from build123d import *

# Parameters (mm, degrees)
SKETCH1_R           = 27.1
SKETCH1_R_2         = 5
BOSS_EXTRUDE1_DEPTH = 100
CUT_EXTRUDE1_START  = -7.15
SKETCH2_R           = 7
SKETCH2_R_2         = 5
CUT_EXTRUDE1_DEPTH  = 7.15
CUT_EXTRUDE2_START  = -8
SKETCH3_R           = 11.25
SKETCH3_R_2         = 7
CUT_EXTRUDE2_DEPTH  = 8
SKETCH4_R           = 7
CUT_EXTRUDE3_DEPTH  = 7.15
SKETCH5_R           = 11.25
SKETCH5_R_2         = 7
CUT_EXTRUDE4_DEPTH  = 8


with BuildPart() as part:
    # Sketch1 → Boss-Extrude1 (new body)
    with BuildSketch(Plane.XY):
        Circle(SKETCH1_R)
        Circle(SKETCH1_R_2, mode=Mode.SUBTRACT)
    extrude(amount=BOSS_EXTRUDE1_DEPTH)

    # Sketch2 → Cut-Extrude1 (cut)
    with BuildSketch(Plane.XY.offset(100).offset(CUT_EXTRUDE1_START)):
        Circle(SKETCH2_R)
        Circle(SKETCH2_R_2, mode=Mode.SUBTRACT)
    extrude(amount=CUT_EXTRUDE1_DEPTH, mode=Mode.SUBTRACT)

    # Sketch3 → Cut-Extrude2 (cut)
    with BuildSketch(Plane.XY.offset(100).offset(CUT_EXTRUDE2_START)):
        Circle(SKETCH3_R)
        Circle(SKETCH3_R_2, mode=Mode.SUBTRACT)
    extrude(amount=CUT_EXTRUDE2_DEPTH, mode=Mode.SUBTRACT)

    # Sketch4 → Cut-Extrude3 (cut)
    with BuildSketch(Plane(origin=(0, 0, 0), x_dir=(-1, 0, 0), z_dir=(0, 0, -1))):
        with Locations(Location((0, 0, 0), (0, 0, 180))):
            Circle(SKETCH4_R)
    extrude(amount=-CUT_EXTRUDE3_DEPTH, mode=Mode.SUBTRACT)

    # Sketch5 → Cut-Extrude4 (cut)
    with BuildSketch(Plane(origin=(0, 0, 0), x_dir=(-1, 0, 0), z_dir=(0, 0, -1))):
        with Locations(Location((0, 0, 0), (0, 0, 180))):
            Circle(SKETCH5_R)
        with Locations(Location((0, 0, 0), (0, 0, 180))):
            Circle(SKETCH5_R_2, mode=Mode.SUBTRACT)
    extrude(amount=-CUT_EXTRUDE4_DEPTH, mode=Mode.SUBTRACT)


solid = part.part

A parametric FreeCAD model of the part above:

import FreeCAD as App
import Part
import Sketcher

V = App.Vector

doc = App.newDocument("Part")
body = doc.addObject("PartDesign::Body", "Body")

# Sketch on XY plane
sketch1 = doc.addObject("Sketcher::SketchObject", "Sketch")
body.addObject(sketch1)
sketch1.AttachmentSupport = (doc.XY_Plane, [""])
sketch1.MapMode = "FlatFace"
sketch1.addGeometry([
    Part.Circle(V(0, 0, 0), V(0, 0, 1), 27),
    Part.Circle(V(0, 0, 0), V(0, 0, 1), 5),
], False)
sketch1.addConstraint([
    Sketcher.Constraint("Coincident", 0, 3, -1, 1),
    Sketcher.Constraint("Coincident", 1, 3, -1, 1),
    Sketcher.Constraint("Diameter", 1, 10.0),
    Sketcher.Constraint("Diameter", 0, 54.2),
])
pad1 = doc.addObject("PartDesign::Pad", "Pad")
body.addObject(pad1)
pad1.Profile = sketch1
pad1.Length = 100

# Sketch on XY plane
sketch2 = doc.addObject("Sketcher::SketchObject", "Sketch001")
body.addObject(sketch2)
sketch2.AttachmentSupport = (doc.XY_Plane, [""])
sketch2.MapMode = "FlatFace"
sketch2.AttachmentOffset = App.Placement(V(0, 0, 92.85), App.Rotation())
sketch2.addGeometry([
    Part.Circle(V(0, 0, 0), V(0, 0, 1), 7),
    Part.Circle(V(0, 0, 0), V(0, 0, 1), 5),
], False)
sketch2.addConstraint([
    Sketcher.Constraint("Coincident", 0, 3, -1, 1),
    Sketcher.Constraint("Coincident", 1, 3, -1, 1),
    Sketcher.Constraint("Diameter", 0, 14.0),
    Sketcher.Constraint("Diameter", 1, 10.0),
])
pocket1 = doc.addObject("PartDesign::Pocket", "Pocket")
body.addObject(pocket1)
pocket1.Profile = sketch2
pocket1.Length = 7.15
pocket1.Reversed = True

# Sketch on XY plane
sketch3 = doc.addObject("Sketcher::SketchObject", "Sketch002")
body.addObject(sketch3)
sketch3.AttachmentSupport = (doc.XY_Plane, [""])
sketch3.MapMode = "FlatFace"
sketch3.AttachmentOffset = App.Placement(V(0, 0, 92), App.Rotation())
sketch3.addGeometry([
    Part.Circle(V(0, 0, 0), V(0, 0, 1), 11),
    Part.Circle(V(0, 0, 0), V(0, 0, 1), 7),
], False)
sketch3.addConstraint([
    Sketcher.Constraint("Coincident", 0, 3, -1, 1),
    Sketcher.Constraint("Coincident", 1, 3, -1, 1),
    Sketcher.Constraint("Diameter", 1, 14.0),
    Sketcher.Constraint("Diameter", 0, 22.5),
])
pocket2 = doc.addObject("PartDesign::Pocket", "Pocket001")
body.addObject(pocket2)
pocket2.Profile = sketch3
pocket2.Length = 8
pocket2.Reversed = True

# Sketch on XY plane
sketch4 = doc.addObject("Sketcher::SketchObject", "Sketch003")
body.addObject(sketch4)
sketch4.AttachmentSupport = (doc.XY_Plane, [""])
sketch4.MapMode = "FlatFace"
sketch4.addGeometry(Part.Circle(V(0, 0, 0), V(0, 0, 1), 7), False)
sketch4.addConstraint([
    Sketcher.Constraint("Coincident", 0, 3, -1, 1),
    Sketcher.Constraint("Diameter", 0, 14.0),
])
pocket3 = doc.addObject("PartDesign::Pocket", "Pocket002")
body.addObject(pocket3)
pocket3.Profile = sketch4
pocket3.Length = 7.15
pocket3.Reversed = True

# Sketch on XY plane
sketch5 = doc.addObject("Sketcher::SketchObject", "Sketch004")
body.addObject(sketch5)
sketch5.AttachmentSupport = (doc.XY_Plane, [""])
sketch5.MapMode = "FlatFace"
sketch5.addGeometry([
    Part.Circle(V(0, 0, 0), V(0, 0, 1), 11),
    Part.Circle(V(0, 0, 0), V(0, 0, 1), 7),
], False)
sketch5.addConstraint([
    Sketcher.Constraint("Coincident", 0, 3, -1, 1),
    Sketcher.Constraint("Coincident", 1, 3, -1, 1),
    Sketcher.Constraint("Diameter", 1, 14.0),
    Sketcher.Constraint("Diameter", 0, 22.5),
])
pocket4 = doc.addObject("PartDesign::Pocket", "Pocket003")
body.addObject(pocket4)
pocket4.Profile = sketch5
pocket4.Length = 8
pocket4.Reversed = True

doc.recompute()
